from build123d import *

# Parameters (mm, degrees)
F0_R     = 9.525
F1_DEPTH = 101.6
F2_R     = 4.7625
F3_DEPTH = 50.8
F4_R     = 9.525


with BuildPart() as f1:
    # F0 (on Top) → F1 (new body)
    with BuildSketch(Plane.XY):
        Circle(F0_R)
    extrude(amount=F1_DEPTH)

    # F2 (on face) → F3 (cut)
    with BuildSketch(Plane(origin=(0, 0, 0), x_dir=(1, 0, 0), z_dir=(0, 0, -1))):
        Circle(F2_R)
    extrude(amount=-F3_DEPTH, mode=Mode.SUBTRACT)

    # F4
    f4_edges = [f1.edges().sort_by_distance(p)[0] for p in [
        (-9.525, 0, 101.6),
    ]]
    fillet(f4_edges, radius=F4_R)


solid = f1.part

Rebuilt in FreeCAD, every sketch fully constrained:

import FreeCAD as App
import Part
import Sketcher
from FreeCAD import Vector
Q = App.Units.Quantity


def edges_at(feature, points):
    """Names of the edges that pass closest to the given points."""
    edges = feature.Shape.Edges
    near = lambda p: min(range(len(edges)), key=lambda i: edges[i].distToShape(Part.Vertex(*p))[0])
    return sorted({f"Edge{near(p) + 1}" for p in points})

doc = App.newDocument("Part")
body = doc.addObject("PartDesign::Body", "Body")

sketch1 = body.newObject("Sketcher::SketchObject", "Sketch")
sketch1.AttachmentSupport = (doc.getObject("XY_Plane"), [""])
sketch1.MapMode = "FlatFace"
sketch1.addGeometry(Part.Circle(Vector(0, 0, 0), Vector(0, 0, 1), 10), False)
sketch1.addConstraint([
    Sketcher.Constraint("Coincident", 0, 3, -1, 1),
    Sketcher.Constraint("Diameter", 0, Q("0.75 in")),
])
pad1 = body.newObject("PartDesign::Pad", "Pad")
pad1.Profile = sketch1
pad1.Length = Q("4 in")

sketch2 = body.newObject("Sketcher::SketchObject", "Sketch001")
sketch2.AttachmentSupport = (doc.getObject("XY_Plane"), [""])
sketch2.MapMode = "FlatFace"
sketch2.addGeometry(Part.Circle(Vector(0, 0, 0), Vector(0, 0, 1), 4.8), False)
sketch2.addConstraint([
    Sketcher.Constraint("Coincident", 0, 3, -1, 1),
    Sketcher.Constraint("Diameter", 0, Q("0.375 in")),
])
pocket1 = body.newObject("PartDesign::Pocket", "Pocket")
pocket1.Profile = sketch2
pocket1.Length = Q("2 in")
pocket1.Reversed = True
doc.recompute()

fillet = body.newObject("PartDesign::Fillet", "Fillet")
fillet.Base = (pocket1, edges_at(pocket1, [(-9.525, 0, 101.6)]))
fillet.Radius = Q("0.375 in")

doc.recompute()
